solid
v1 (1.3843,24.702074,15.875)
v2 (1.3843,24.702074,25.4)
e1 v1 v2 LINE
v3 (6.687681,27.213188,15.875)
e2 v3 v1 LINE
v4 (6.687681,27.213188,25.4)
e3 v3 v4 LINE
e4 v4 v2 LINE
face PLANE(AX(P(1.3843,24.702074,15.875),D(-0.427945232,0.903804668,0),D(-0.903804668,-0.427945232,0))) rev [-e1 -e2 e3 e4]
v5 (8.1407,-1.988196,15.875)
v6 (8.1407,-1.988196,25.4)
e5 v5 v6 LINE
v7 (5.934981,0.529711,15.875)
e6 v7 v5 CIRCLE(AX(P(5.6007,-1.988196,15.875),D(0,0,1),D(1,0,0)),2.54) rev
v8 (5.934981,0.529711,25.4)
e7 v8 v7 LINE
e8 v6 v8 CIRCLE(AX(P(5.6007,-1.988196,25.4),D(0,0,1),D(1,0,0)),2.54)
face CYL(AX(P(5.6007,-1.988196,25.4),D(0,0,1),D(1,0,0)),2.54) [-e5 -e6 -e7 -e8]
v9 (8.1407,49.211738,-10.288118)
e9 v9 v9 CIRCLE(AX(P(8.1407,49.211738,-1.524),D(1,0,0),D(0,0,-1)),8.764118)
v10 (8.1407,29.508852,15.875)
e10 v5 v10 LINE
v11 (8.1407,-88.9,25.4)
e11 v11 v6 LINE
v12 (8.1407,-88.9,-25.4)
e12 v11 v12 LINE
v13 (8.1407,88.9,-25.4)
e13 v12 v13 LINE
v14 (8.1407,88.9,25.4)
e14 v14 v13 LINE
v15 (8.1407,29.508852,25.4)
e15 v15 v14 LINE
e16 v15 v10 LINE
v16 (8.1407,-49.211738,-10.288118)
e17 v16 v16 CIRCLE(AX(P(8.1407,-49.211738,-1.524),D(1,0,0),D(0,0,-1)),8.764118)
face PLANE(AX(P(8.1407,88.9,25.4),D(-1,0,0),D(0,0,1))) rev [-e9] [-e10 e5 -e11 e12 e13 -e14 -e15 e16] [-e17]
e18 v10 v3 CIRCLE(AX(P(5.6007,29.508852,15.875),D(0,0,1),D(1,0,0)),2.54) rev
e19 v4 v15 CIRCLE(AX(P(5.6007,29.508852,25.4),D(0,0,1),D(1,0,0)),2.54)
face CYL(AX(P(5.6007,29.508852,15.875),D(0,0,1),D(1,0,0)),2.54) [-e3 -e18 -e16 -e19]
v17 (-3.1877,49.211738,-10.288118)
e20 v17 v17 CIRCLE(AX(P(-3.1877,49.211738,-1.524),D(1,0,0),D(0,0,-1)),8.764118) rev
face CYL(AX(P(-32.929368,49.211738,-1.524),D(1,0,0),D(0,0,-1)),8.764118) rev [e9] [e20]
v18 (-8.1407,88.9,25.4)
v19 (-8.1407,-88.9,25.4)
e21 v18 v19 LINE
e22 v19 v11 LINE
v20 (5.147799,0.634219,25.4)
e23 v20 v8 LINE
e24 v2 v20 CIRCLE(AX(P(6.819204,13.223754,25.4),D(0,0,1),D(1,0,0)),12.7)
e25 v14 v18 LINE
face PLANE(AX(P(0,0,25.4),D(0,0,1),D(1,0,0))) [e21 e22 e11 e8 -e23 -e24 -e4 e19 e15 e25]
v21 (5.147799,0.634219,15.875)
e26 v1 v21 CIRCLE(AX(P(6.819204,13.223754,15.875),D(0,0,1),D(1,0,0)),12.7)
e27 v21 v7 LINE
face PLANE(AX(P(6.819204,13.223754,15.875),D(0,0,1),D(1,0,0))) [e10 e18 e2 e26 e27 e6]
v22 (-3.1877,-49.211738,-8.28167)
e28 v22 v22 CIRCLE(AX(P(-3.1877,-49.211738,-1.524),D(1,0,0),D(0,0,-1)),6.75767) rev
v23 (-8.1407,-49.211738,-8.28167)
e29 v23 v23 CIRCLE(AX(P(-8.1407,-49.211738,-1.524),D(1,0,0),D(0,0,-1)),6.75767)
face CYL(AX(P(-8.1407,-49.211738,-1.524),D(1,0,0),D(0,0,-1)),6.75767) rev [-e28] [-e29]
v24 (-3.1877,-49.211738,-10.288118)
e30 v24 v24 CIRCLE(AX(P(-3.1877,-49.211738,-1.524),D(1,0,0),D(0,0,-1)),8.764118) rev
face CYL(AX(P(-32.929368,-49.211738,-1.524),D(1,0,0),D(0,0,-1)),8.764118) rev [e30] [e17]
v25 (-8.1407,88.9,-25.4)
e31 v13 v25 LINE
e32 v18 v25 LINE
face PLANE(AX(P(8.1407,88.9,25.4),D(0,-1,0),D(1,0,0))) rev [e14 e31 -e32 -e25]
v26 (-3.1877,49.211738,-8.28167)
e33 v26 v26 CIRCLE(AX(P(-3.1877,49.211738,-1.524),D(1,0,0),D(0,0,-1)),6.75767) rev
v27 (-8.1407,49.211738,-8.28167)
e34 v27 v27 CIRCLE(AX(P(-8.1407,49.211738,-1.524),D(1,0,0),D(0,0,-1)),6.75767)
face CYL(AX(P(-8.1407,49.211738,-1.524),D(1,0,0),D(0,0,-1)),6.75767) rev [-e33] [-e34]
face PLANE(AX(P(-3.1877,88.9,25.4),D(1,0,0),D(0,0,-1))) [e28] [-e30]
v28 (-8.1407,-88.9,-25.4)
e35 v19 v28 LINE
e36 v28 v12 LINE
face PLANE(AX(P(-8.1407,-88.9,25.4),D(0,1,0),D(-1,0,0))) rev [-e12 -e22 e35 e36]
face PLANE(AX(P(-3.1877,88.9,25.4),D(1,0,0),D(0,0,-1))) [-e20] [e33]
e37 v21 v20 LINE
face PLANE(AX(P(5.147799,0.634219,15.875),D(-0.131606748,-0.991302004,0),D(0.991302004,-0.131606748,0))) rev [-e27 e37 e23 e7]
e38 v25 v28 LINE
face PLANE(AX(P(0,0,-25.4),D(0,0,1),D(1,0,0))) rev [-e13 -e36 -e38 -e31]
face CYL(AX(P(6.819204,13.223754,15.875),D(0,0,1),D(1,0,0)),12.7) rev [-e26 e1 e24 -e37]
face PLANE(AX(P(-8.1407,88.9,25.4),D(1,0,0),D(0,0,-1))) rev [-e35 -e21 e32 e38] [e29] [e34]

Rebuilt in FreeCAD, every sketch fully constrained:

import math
import FreeCAD as App
import Part
import Sketcher
from FreeCAD import Vector
Q = App.Units.Quantity


def edges_at(feature, points):
    """Names of the edges that pass closest to the given points."""
    edges = feature.Shape.Edges
    near = lambda p: min(range(len(edges)), key=lambda i: edges[i].distToShape(Part.Vertex(*p))[0])
    return sorted({f"Edge{near(p) + 1}" for p in points})


def add_polygon(sketch, points):
    """Adds a closed chain of lines whose ends are joined by coincident constraints."""
    first, n = sketch.GeometryCount, len(points)
    for a, b in zip(points, points[1:] + points[:1]):
        sketch.addGeometry(Part.LineSegment(App.Vector(*a, 0), App.Vector(*b, 0)), False)
    for i in range(n):
        sketch.addConstraint(Sketcher.Constraint("Coincident", first + i, 2, first + (i + 1) % n, 1))

doc = App.newDocument("Part")
body = doc.addObject("PartDesign::Body", "Body")

# Sketch on XY plane
sketch1 = body.newObject("Sketcher::SketchObject", "Sketch")
sketch1.AttachmentSupport = (doc.getObject("XY_Plane"), [""])
sketch1.MapMode = "FlatFace"
add_polygon(sketch1, [(-8.1407, 88.9), (-8.1407, -88.9), (8.1407, -88.9), (8.1407, 88.9)])  # lines 0-3
sketch1.addConstraint(Sketcher.Constraint("Vertical", 0))
sketch1.addConstraint(Sketcher.Constraint("Horizontal", 1))
sketch1.addConstraint(Sketcher.Constraint("Vertical", 2))
sketch1.addConstraint(Sketcher.Constraint("Horizontal", 3))
sketch1.addConstraint(Sketcher.Constraint("Symmetric", 0, 2, 2, 2, -1, 1))
sketch1.addConstraint(Sketcher.Constraint("DistanceY", 0, 2, 0, 1, Q("7 in")))
sketch1.addConstraint(Sketcher.Constraint("DistanceX", 1, 1, 1, 2, Q("0.641 in")))
pad1 = body.newObject("PartDesign::Pad", "Pad")
pad1.Profile = sketch1
pad1.Length = Q("2 in")
pad1.Midplane = True

# Sketch on YZ plane
sketch2 = body.newObject("Sketcher::SketchObject", "Sketch001")
sketch2.AttachmentSupport = (doc.getObject("YZ_Plane"), [""])
sketch2.MapMode = "FlatFace"
sketch2.AttachmentOffset = App.Placement(Vector(0, 0, 0.3205 * 25.4), App.Rotation())
sketch2.addGeometry(Part.Circle(Vector(49.211738, -1.524, 0), Vector(0, 0, 1), 6.75767), False)
sketch2.addGeometry(Part.Circle(Vector(-49.211738, -1.524, 0), Vector(0, 0, 1), 6.75767), False)
sketch2.addConstraint(Sketcher.Constraint("Equal", 0, 1))
sketch2.addConstraint(Sketcher.Constraint("Symmetric", 0, 3, 1, 3, -2))
sketch2.addConstraint(Sketcher.Constraint("Diameter", 0, Q("0.5321 in")))
sketch2.addConstraint(Sketcher.Constraint("DistanceY", 0, 3, -1, 1, Q("0.06 in")))
sketch2.addConstraint(Sketcher.Constraint("DistanceX", -1, 1, 0, 3, Q("49.211738 mm")))
pocket1 = body.newObject("PartDesign::Pocket", "Pocket")
pocket1.Profile = sketch2
pocket1.Type = "ThroughAll"

# Sketch on YZ plane
sketch3 = body.newObject("Sketcher::SketchObject", "Sketch002")
sketch3.AttachmentSupport = (doc.getObject("YZ_Plane"), [""])
sketch3.MapMode = "FlatFace"
sketch3.AttachmentOffset = App.Placement(Vector(0, 0, 0.3205 * 25.4), App.Rotation())
sketch3.addGeometry(Part.Circle(Vector(49.211738, -1.524, 0), Vector(0, 0, 1), 8.764118), False)
sketch3.addGeometry(Part.Circle(Vector(-49.211738, -1.524, 0), Vector(0, 0, 1), 8.764118), False)
sketch3.addConstraint(Sketcher.Constraint("Equal", 0, 1))
sketch3.addConstraint(Sketcher.Constraint("Symmetric", 0, 3, 1, 3, -2))
sketch3.addConstraint(Sketcher.Constraint("DistanceY", 0, 3, -1, 1, Q("0.06 in")))
sketch3.addConstraint(Sketcher.Constraint("Diameter", 0, Q("17.528235 mm")))
sketch3.addConstraint(Sketcher.Constraint("DistanceX", -1, 1, 0, 3, Q("49.211738 mm")))
pocket2 = body.newObject("PartDesign::Pocket", "Pocket001")
pocket2.Profile = sketch3
pocket2.Length = Q("0.446 in")

# Sketch on XY plane
sketch4 = body.newObject("Sketcher::SketchObject", "Sketch003")
sketch4.AttachmentSupport = (doc.getObject("XY_Plane"), [""])
sketch4.MapMode = "FlatFace"
sketch4.AttachmentOffset = App.Placement(Vector(0, 0, 1 * 25.4), App.Rotation())
sketch4.addGeometry(Part.LineSegment(Vector(8.1407, 27.901182, 0), Vector(1.3843, 24.702074, 0)), False)
sketch4.addGeometry(Part.ArcOfCircle(Part.Circle(Vector(6.819204, 13.223754, 0), Vector(0, 0, 1), 12.7), math.radians(115.33723), math.radians(262.43755)), False)
sketch4.addGeometry(Part.LineSegment(Vector(5.147799, 0.634219, 0), Vector(8.1407, 0.236877, 0)), False)
sketch4.addGeometry(Part.LineSegment(Vector(8.1407, 0.236877, 0), Vector(8.1407, 27.901182, 0)), False)
sketch4.addConstraint(Sketcher.Constraint("Tangent", 0, 2, 1, 1))
sketch4.addConstraint(Sketcher.Constraint("Tangent", 1, 2, 2, 1))
sketch4.addConstraint(Sketcher.Constraint("Coincident", 2, 2, 3, 1))
sketch4.addConstraint(Sketcher.Constraint("Coincident", 3, 2, 0, 1))
sketch4.addConstraint(Sketcher.Constraint("Vertical", 3))
sketch4.addConstraint(Sketcher.Constraint("Radius", 1, Q("0.5 in")))
sketch4.addConstraint(Sketcher.Constraint("DistanceX", 0, 2, 2, 2, Q("0.266 in")))
sketch4.addConstraint(Sketcher.Constraint("DistanceX", -1, 1, 0, 2, Q("0.0545 in")))
sketch4.addConstraint(Sketcher.Constraint("DistanceX", -1, 1, 1, 2, Q("5.147799 mm")))
sketch4.addConstraint(Sketcher.Constraint("Distance", 0, Q("7.475509 mm")))
sketch4.addConstraint(Sketcher.Constraint("DistanceY", -1, 1, 1, 2, Q("0.634219 mm")))
pocket3 = body.newObject("PartDesign::Pocket", "Pocket002")
pocket3.Profile = sketch4
pocket3.Length = Q("0.375 in")
doc.recompute()

fillet = body.newObject("PartDesign::Fillet", "Fillet")
fillet.Base = (pocket3, edges_at(pocket3, [(8.141, 27.901, 20.637), (8.141, 0.237, 20.637)]))
fillet.Radius = Q("0.1 in")

doc.recompute()
